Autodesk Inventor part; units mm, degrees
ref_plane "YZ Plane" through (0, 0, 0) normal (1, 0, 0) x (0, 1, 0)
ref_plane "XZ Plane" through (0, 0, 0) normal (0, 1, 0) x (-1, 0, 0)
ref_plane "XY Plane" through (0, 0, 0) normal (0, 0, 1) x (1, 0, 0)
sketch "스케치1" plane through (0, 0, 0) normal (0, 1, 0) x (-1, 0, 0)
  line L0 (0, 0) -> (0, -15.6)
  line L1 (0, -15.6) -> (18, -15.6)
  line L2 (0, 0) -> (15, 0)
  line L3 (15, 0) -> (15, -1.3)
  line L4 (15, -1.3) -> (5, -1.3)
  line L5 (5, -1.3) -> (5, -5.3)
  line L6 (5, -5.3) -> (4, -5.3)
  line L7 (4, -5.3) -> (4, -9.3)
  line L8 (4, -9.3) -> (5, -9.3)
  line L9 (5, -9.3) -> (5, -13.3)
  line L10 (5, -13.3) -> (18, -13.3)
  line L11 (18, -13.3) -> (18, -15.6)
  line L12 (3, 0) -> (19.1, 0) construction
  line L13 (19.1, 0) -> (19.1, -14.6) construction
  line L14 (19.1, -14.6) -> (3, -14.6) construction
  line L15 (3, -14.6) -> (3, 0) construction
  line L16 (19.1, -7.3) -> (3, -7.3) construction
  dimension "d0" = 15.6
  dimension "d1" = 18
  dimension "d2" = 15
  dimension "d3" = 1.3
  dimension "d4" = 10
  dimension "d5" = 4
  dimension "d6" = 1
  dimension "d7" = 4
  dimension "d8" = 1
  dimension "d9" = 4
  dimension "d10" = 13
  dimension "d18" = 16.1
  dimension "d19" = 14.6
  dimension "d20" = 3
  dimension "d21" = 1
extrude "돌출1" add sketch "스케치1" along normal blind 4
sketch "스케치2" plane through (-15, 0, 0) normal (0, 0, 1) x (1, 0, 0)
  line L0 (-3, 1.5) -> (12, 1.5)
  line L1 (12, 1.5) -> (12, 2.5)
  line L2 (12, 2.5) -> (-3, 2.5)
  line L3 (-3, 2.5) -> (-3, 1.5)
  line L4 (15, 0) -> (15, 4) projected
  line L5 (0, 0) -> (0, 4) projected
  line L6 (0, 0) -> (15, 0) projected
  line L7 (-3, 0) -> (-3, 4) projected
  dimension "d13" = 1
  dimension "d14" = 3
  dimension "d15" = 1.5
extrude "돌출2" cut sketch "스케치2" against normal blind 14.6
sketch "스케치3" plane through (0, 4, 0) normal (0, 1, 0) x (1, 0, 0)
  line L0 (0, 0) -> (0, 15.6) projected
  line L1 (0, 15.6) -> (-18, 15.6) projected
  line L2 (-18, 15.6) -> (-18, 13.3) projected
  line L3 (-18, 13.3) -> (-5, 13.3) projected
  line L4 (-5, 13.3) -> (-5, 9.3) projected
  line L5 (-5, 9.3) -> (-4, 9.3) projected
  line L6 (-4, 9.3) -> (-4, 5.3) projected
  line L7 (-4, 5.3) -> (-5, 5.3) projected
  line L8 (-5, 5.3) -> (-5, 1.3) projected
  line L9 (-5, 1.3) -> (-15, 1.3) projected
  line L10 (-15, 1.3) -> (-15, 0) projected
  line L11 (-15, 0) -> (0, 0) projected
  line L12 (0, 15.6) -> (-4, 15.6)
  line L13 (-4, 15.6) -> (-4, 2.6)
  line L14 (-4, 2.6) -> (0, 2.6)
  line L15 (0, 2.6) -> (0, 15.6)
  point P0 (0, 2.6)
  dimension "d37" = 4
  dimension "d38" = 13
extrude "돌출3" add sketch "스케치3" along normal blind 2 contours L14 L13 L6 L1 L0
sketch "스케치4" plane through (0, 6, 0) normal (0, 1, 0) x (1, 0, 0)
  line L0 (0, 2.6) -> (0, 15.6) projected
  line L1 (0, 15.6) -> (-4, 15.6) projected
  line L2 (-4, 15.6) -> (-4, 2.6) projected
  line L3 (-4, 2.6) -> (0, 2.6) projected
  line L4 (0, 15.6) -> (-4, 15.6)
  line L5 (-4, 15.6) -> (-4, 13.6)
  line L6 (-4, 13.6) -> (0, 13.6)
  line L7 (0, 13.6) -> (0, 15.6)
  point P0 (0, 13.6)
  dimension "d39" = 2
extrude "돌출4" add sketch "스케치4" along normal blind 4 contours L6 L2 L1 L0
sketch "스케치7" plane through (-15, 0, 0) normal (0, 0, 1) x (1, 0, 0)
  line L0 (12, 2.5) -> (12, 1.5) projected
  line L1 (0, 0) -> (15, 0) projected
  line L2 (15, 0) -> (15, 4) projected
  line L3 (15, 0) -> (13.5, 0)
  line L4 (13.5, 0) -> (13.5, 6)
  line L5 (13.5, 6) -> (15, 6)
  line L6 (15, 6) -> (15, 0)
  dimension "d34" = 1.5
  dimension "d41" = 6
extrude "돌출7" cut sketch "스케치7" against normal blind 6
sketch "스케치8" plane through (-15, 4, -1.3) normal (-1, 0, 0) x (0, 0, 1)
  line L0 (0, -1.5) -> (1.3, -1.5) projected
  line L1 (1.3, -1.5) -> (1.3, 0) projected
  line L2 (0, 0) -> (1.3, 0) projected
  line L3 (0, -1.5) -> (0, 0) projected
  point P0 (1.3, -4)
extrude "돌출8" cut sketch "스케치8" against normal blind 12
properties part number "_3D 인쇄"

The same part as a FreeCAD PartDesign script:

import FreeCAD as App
import Part
import Sketcher

doc = App.newDocument("Part")
body = doc.addObject("PartDesign::Body", "Body")

sketch1 = doc.addObject("Sketcher::SketchObject", "Sketch")
body.addObject(sketch1)
sketch1.AttachmentSupport = (doc.XZ_Plane, [""])
sketch1.MapMode = "FlatFace"
sketch1.addGeometry(Part.LineSegment(App.Vector(-15, 0, 0), App.Vector(0, 0, 0)), False)
sketch1.addGeometry(Part.LineSegment(App.Vector(0, 0, 0), App.Vector(0, -15.6, 0)), False)
sketch1.addGeometry(Part.LineSegment(App.Vector(0, -15.6, 0), App.Vector(-18, -15.6, 0)), False)
sketch1.addGeometry(Part.LineSegment(App.Vector(-18, -15.6, 0), App.Vector(-18, -13.3, 0)), False)
sketch1.addGeometry(Part.LineSegment(App.Vector(-18, -13.3, 0), App.Vector(-5, -13.3, 0)), False)
sketch1.addGeometry(Part.LineSegment(App.Vector(-5, -13.3, 0), App.Vector(-5, -9.3, 0)), False)
sketch1.addGeometry(Part.LineSegment(App.Vector(-5, -9.3, 0), App.Vector(-4, -9.3, 0)), False)
sketch1.addGeometry(Part.LineSegment(App.Vector(-4, -9.3, 0), App.Vector(-4, -5.3, 0)), False)
sketch1.addGeometry(Part.LineSegment(App.Vector(-4, -5.3, 0), App.Vector(-5, -5.3, 0)), False)
sketch1.addGeometry(Part.LineSegment(App.Vector(-5, -5.3, 0), App.Vector(-5, -1.3, 0)), False)
sketch1.addGeometry(Part.LineSegment(App.Vector(-5, -1.3, 0), App.Vector(-15, -1.3, 0)), False)
sketch1.addGeometry(Part.LineSegment(App.Vector(-15, -1.3, 0), App.Vector(-15, 0, 0)), False)
sketch1.addConstraint(Sketcher.Constraint("Coincident", 0, 2, 1, 1))
sketch1.addConstraint(Sketcher.Constraint("Coincident", 1, 2, 2, 1))
sketch1.addConstraint(Sketcher.Constraint("Coincident", 2, 2, 3, 1))
sketch1.addConstraint(Sketcher.Constraint("Coincident", 3, 2, 4, 1))
sketch1.addConstraint(Sketcher.Constraint("Coincident", 4, 2, 5, 1))
sketch1.addConstraint(Sketcher.Constraint("Coincident", 5, 2, 6, 1))
sketch1.addConstraint(Sketcher.Constraint("Coincident", 6, 2, 7, 1))
sketch1.addConstraint(Sketcher.Constraint("Coincident", 7, 2, 8, 1))
sketch1.addConstraint(Sketcher.Constraint("Coincident", 8, 2, 9, 1))
sketch1.addConstraint(Sketcher.Constraint("Coincident", 9, 2, 10, 1))
sketch1.addConstraint(Sketcher.Constraint("Coincident", 10, 2, 11, 1))
sketch1.addConstraint(Sketcher.Constraint("Coincident", 11, 2, 0, 1))
sketch1.addConstraint(Sketcher.Constraint("Horizontal", 0))
sketch1.addConstraint(Sketcher.Constraint("Vertical", 1))
sketch1.addConstraint(Sketcher.Constraint("Horizontal", 2))
sketch1.addConstraint(Sketcher.Constraint("Vertical", 3))
sketch1.addConstraint(Sketcher.Constraint("Horizontal", 4))
sketch1.addConstraint(Sketcher.Constraint("Vertical", 5))
sketch1.addConstraint(Sketcher.Constraint("Horizontal", 6))
sketch1.addConstraint(Sketcher.Constraint("Vertical", 7))
sketch1.addConstraint(Sketcher.Constraint("Horizontal", 8))
sketch1.addConstraint(Sketcher.Constraint("Vertical", 9))
sketch1.addConstraint(Sketcher.Constraint("Horizontal", 10))
sketch1.addConstraint(Sketcher.Constraint("Vertical", 11))
sketch1.addConstraint(Sketcher.Constraint("Coincident", 0, 2, -1, 1))
sketch1.addConstraint(Sketcher.Constraint("Vertical", 5, 2, 8, 2))
sketch1.addConstraint(Sketcher.Constraint("Equal", 5, 7))
sketch1.addConstraint(Sketcher.Constraint("Equal", 7, 9))
sketch1.addConstraint(Sketcher.Constraint("DistanceX", 0, 1, 0, 2, 15.0))
sketch1.addConstraint(Sketcher.Constraint("DistanceX", 2, 2, 2, 1, 18.0))
sketch1.addConstraint(Sketcher.Constraint("DistanceX", 4, 1, 4, 2, 13.0))
sketch1.addConstraint(Sketcher.Constraint("DistanceX", 6, 1, 6, 2, 1.0))
sketch1.addConstraint(Sketcher.Constraint("DistanceY", 5, 1, 5, 2, 4.0))
sketch1.addConstraint(Sketcher.Constraint("DistanceY", 1, 2, 1, 1, 15.6))
sketch1.addConstraint(Sketcher.Constraint("DistanceY", 11, 1, 11, 2, 1.3))
pad1 = doc.addObject("PartDesign::Pad", "Pad")
body.addObject(pad1)
pad1.Profile = sketch1
pad1.Length = 4
pad1.Reversed = True

sketch2 = doc.addObject("Sketcher::SketchObject", "Sketch001")
body.addObject(sketch2)
sketch2.AttachmentSupport = (doc.XY_Plane, [""])
sketch2.MapMode = "FlatFace"
sketch2.addGeometry(Part.LineSegment(App.Vector(-18, 2.5, 0), App.Vector(-18, 1.5, 0)), False)
sketch2.addGeometry(Part.LineSegment(App.Vector(-18, 1.5, 0), App.Vector(-3, 1.5, 0)), False)
sketch2.addGeometry(Part.LineSegment(App.Vector(-3, 1.5, 0), App.Vector(-3, 2.5, 0)), False)
sketch2.addGeometry(Part.LineSegment(App.Vector(-3, 2.5, 0), App.Vector(-18, 2.5, 0)), False)
sketch2.addConstraint(Sketcher.Constraint("Coincident", 0, 2, 1, 1))
sketch2.addConstraint(Sketcher.Constraint("Coincident", 1, 2, 2, 1))
sketch2.addConstraint(Sketcher.Constraint("Coincident", 2, 2, 3, 1))
sketch2.addConstraint(Sketcher.Constraint("Coincident", 3, 2, 0, 1))
sketch2.addConstraint(Sketcher.Constraint("Vertical", 0))
sketch2.addConstraint(Sketcher.Constraint("Horizontal", 1))
sketch2.addConstraint(Sketcher.Constraint("Vertical", 2))
sketch2.addConstraint(Sketcher.Constraint("Horizontal", 3))
sketch2.addConstraint(Sketcher.Constraint("DistanceY", 0, 2, 0, 1, 1.0))
sketch2.addConstraint(Sketcher.Constraint("DistanceX", 1, 2, -1, 1, 3.0))
sketch2.addConstraint(Sketcher.Constraint("DistanceY", -1, 1, 0, 2, 1.5))
sketch2.addConstraint(Sketcher.Constraint("DistanceX", 1, 1, 1, 2, 15.0))
pocket1 = doc.addObject("PartDesign::Pocket", "Pocket")
body.addObject(pocket1)
pocket1.Profile = sketch2
pocket1.Length = 14.6

sketch3 = doc.addObject("Sketcher::SketchObject", "Sketch002")
body.addObject(sketch3)
sketch3.AttachmentSupport = (doc.XZ_Plane, [""])
sketch3.MapMode = "FlatFace"
sketch3.AttachmentOffset = App.Placement(App.Vector(0, 0, -4), App.Rotation())
sketch3.addGeometry(Part.LineSegment(App.Vector(-4, -2.6, 0), App.Vector(0, -2.6, 0)), False)
sketch3.addGeometry(Part.LineSegment(App.Vector(0, -2.6, 0), App.Vector(0, -15.6, 0)), False)
sketch3.addGeometry(Part.LineSegment(App.Vector(0, -15.6, 0), App.Vector(-4, -15.6, 0)), False)
sketch3.addGeometry(Part.LineSegment(App.Vector(-4, -15.6, 0), App.Vector(-4, -2.6, 0)), False)
sketch3.addConstraint(Sketcher.Constraint("Coincident", 0, 2, 1, 1))
sketch3.addConstraint(Sketcher.Constraint("Coincident", 1, 2, 2, 1))
sketch3.addConstraint(Sketcher.Constraint("Coincident", 2, 2, 3, 1))
sketch3.addConstraint(Sketcher.Constraint("Coincident", 3, 2, 0, 1))
sketch3.addConstraint(Sketcher.Constraint("Horizontal", 0))
sketch3.addConstraint(Sketcher.Constraint("Vertical", 1))
sketch3.addConstraint(Sketcher.Constraint("Horizontal", 2))
sketch3.addConstraint(Sketcher.Constraint("Vertical", 3))
sketch3.addConstraint(Sketcher.Constraint("PointOnObject", 0, 2, -2))
sketch3.addConstraint(Sketcher.Constraint("DistanceX", 0, 1, 0, 2, 4.0))
sketch3.addConstraint(Sketcher.Constraint("DistanceY", 1, 2, 1, 1, 13.0))
sketch3.addConstraint(Sketcher.Constraint("DistanceY", 0, 2, -1, 1, 2.6))
pad2 = doc.addObject("PartDesign::Pad", "Pad001")
body.addObject(pad2)
pad2.Profile = sketch3
pad2.Length = 2
pad2.Reversed = True

sketch4 = doc.addObject("Sketcher::SketchObject", "Sketch003")
body.addObject(sketch4)
sketch4.AttachmentSupport = (doc.XZ_Plane, [""])
sketch4.MapMode = "FlatFace"
sketch4.AttachmentOffset = App.Placement(App.Vector(0, 0, -6), App.Rotation())
sketch4.addGeometry(Part.LineSegment(App.Vector(-4, -13.6, 0), App.Vector(0, -13.6, 0)), False)
sketch4.addGeometry(Part.LineSegment(App.Vector(0, -13.6, 0), App.Vector(0, -15.6, 0)), False)
sketch4.addGeometry(Part.LineSegment(App.Vector(0, -15.6, 0), App.Vector(-4, -15.6, 0)), False)
sketch4.addGeometry(Part.LineSegment(App.Vector(-4, -15.6, 0), App.Vector(-4, -13.6, 0)), False)
sketch4.addConstraint(Sketcher.Constraint("Coincident", 0, 2, 1, 1))
sketch4.addConstraint(Sketcher.Constraint("Coincident", 1, 2, 2, 1))
sketch4.addConstraint(Sketcher.Constraint("Coincident", 2, 2, 3, 1))
sketch4.addConstraint(Sketcher.Constraint("Coincident", 3, 2, 0, 1))
sketch4.addConstraint(Sketcher.Constraint("Horizontal", 0))
sketch4.addConstraint(Sketcher.Constraint("Vertical", 1))
sketch4.addConstraint(Sketcher.Constraint("Horizontal", 2))
sketch4.addConstraint(Sketcher.Constraint("Vertical", 3))
sketch4.addConstraint(Sketcher.Constraint("PointOnObject", 0, 2, -2))
sketch4.addConstraint(Sketcher.Constraint("DistanceY", 1, 2, 1, 1, 2.0))
sketch4.addConstraint(Sketcher.Constraint("DistanceX", 0, 1, 0, 2, 4.0))
sketch4.addConstraint(Sketcher.Constraint("DistanceY", 0, 2, -1, 1, 13.6))
pad3 = doc.addObject("PartDesign::Pad", "Pad002")
body.addObject(pad3)
pad3.Profile = sketch4
pad3.Length = 4
pad3.Reversed = True

sketch5 = doc.addObject("Sketcher::SketchObject", "Sketch004")
body.addObject(sketch5)
sketch5.AttachmentSupport = (doc.XY_Plane, [""])
sketch5.MapMode = "FlatFace"
sketch5.addGeometry(Part.LineSegment(App.Vector(-1.5, 6, 0), App.Vector(-1.5, 0, 0)), False)
sketch5.addGeometry(Part.LineSegment(App.Vector(-1.5, 0, 0), App.Vector(0, 0, 0)), False)
sketch5.addGeometry(Part.LineSegment(App.Vector(0, 0, 0), App.Vector(0, 6, 0)), False)
sketch5.addGeometry(Part.LineSegment(App.Vector(0, 6, 0), App.Vector(-1.5, 6, 0)), False)
sketch5.addConstraint(Sketcher.Constraint("Coincident", 0, 2, 1, 1))
sketch5.addConstraint(Sketcher.Constraint("Coincident", 1, 2, 2, 1))
sketch5.addConstraint(Sketcher.Constraint("Coincident", 2, 2, 3, 1))
sketch5.addConstraint(Sketcher.Constraint("Coincident", 3, 2, 0, 1))
sketch5.addConstraint(Sketcher.Constraint("Vertical", 0))
sketch5.addConstraint(Sketcher.Constraint("Horizontal", 1))
sketch5.addConstraint(Sketcher.Constraint("Vertical", 2))
sketch5.addConstraint(Sketcher.Constraint("Horizontal", 3))
sketch5.addConstraint(Sketcher.Constraint("Coincident", 1, 2, -1, 1))
sketch5.addConstraint(Sketcher.Constraint("DistanceY", 0, 2, 0, 1, 6.0))
sketch5.addConstraint(Sketcher.Constraint("DistanceX", 1, 1, 1, 2, 1.5))
pocket2 = doc.addObject("PartDesign::Pocket", "Pocket001")
body.addObject(pocket2)
pocket2.Profile = sketch5
pocket2.Length = 6

sketch6 = doc.addObject("Sketcher::SketchObject", "Sketch005")
body.addObject(sketch6)
sketch6.AttachmentSupport = (doc.YZ_Plane, [""])
sketch6.MapMode = "FlatFace"
sketch6.AttachmentOffset = App.Placement(App.Vector(0, 0, -15), App.Rotation())
sketch6.addGeometry(Part.LineSegment(App.Vector(4, -1.3, 0), App.Vector(2.5, -1.3, 0)), False)
sketch6.addGeometry(Part.LineSegment(App.Vector(2.5, -1.3, 0), App.Vector(2.5, 0, 0)), False)
sketch6.addGeometry(Part.LineSegment(App.Vector(2.5, 0, 0), App.Vector(4, 0, 0)), False)
sketch6.addGeometry(Part.LineSegment(App.Vector(4, 0, 0), App.Vector(4, -1.3, 0)), False)
sketch6.addConstraint(Sketcher.Constraint("Coincident", 0, 2, 1, 1))
sketch6.addConstraint(Sketcher.Constraint("Coincident", 1, 2, 2, 1))
sketch6.addConstraint(Sketcher.Constraint("Coincident", 2, 2, 3, 1))
sketch6.addConstraint(Sketcher.Constraint("Coincident", 3, 2, 0, 1))
sketch6.addConstraint(Sketcher.Constraint("Horizontal", 0))
sketch6.addConstraint(Sketcher.Constraint("Vertical", 1))
sketch6.addConstraint(Sketcher.Constraint("Horizontal", 2))
sketch6.addConstraint(Sketcher.Constraint("Vertical", 3))
sketch6.addConstraint(Sketcher.Constraint("PointOnObject", 1, 2, -1))
sketch6.addConstraint(Sketcher.Constraint("DistanceX", 0, 2, 0, 1, 1.5))
sketch6.addConstraint(Sketcher.Constraint("DistanceY", 1, 1, 1, 2, 1.3))
sketch6.addConstraint(Sketcher.Constraint("DistanceX", -1, 1, 2, 2, 4.0))
pocket3 = doc.addObject("PartDesign::Pocket", "Pocket002")
body.addObject(pocket3)
pocket3.Profile = sketch6
pocket3.Length = 12
pocket3.Reversed = True

doc.recompute()
